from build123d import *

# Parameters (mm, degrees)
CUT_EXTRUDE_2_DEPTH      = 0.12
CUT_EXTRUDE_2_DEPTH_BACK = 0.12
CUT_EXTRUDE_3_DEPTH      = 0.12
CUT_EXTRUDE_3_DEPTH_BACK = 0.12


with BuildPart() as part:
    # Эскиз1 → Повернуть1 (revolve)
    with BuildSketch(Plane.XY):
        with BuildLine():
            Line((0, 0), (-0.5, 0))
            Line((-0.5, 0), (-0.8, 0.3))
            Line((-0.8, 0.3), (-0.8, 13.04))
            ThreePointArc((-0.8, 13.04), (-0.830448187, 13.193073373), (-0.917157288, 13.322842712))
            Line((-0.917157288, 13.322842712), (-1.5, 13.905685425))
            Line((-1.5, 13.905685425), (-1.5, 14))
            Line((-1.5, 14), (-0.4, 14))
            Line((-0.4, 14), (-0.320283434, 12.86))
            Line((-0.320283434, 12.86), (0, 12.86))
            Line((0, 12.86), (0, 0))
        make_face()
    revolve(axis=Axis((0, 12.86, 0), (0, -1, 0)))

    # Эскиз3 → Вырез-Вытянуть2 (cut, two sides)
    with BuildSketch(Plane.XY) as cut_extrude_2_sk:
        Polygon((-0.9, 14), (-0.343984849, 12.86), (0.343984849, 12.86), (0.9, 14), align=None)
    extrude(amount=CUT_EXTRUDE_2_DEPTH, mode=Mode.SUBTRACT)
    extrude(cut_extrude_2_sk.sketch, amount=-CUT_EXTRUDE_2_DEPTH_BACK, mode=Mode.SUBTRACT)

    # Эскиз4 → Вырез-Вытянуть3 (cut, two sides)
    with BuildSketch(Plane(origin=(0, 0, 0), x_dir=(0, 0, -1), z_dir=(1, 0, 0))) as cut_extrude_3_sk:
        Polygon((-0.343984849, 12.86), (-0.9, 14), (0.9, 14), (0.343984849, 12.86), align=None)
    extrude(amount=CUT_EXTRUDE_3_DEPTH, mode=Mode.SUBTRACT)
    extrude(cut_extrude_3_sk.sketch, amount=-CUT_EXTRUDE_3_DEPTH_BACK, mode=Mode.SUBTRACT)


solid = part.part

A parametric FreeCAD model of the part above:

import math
import FreeCAD as App
import Part
import Sketcher

V = App.Vector
Q = App.Units.Quantity

doc = App.newDocument("Part")
body = doc.addObject("PartDesign::Body", "Body")

sketch1 = body.newObject("Sketcher::SketchObject", "Sketch")
sketch1.AttachmentSupport = (doc.getObject("XY_Plane"), [""])
sketch1.MapMode = "FlatFace"
sketch1.addGeometry([
    Part.LineSegment(V(-0.5, 0, 0), V(0, 0, 0)),
    Part.LineSegment(V(0, 0, 0), V(0, 12.86, 0)),
    Part.LineSegment(V(0, 12.86, 0), V(-0.32, 12.86, 0)),
    Part.LineSegment(V(-0.32, 12.86, 0), V(-0.4, 14, 0)),
    Part.LineSegment(V(-0.4, 14, 0), V(-1.5, 14, 0)),
    Part.LineSegment(V(-1.5, 14, 0), V(-1.5, 13.91, 0)),
    Part.LineSegment(V(-1.5, 13.91, 0), V(-0.92, 13.32, 0)),
    Part.ArcOfCircle(Part.Circle(V(-1.2, 13.04, 0), V(0, 0, 1), 0.4), math.radians(0), math.radians(45)),
    Part.LineSegment(V(-0.8, 13.04, 0), V(-0.8, 0.3, 0)),
    Part.LineSegment(V(-0.8, 0.3, 0), V(-0.5, 0, 0)),
], False)
sketch1.addConstraint([
    Sketcher.Constraint("Coincident", 0, 2, 1, 1),
    Sketcher.Constraint("Coincident", 1, 2, 2, 1),
    Sketcher.Constraint("Coincident", 2, 2, 3, 1),
    Sketcher.Constraint("Coincident", 3, 2, 4, 1),
    Sketcher.Constraint("Coincident", 4, 2, 5, 1),
    Sketcher.Constraint("Coincident", 5, 2, 6, 1),
    Sketcher.Constraint("Tangent", 6, 2, 7, 2),
    Sketcher.Constraint("Tangent", 7, 1, 8, 1),
    Sketcher.Constraint("Coincident", 8, 2, 9, 1),
    Sketcher.Constraint("Coincident", 9, 2, 0, 1),
    Sketcher.Constraint("Horizontal", 0),
    Sketcher.Constraint("Vertical", 1),
    Sketcher.Constraint("Horizontal", 2),
    Sketcher.Constraint("Horizontal", 4),
    Sketcher.Constraint("Vertical", 5),
    Sketcher.Constraint("Vertical", 8),
    Sketcher.Constraint("Coincident", 0, 2, -1, 1),
    Sketcher.Constraint("Parallel", 6, 9),
    Sketcher.Constraint("Radius", 7, 0.4),
    Sketcher.Constraint("Angle", 3, Q("94 deg")),
    Sketcher.Constraint("Angle", 6, Q("-45 deg")),
    Sketcher.Constraint("DistanceX", 0, 1, 0, 2, 0.5),
    Sketcher.Constraint("DistanceX", 4, 2, 4, 1, 1.1),
    Sketcher.Constraint("DistanceY", -1, 1, 3, 2, 14.0),
    Sketcher.Constraint("DistanceY", 1, 1, 1, 2, 12.86),
    Sketcher.Constraint("DistanceY", 8, 2, 8, 1, 12.74),
    Sketcher.Constraint("DistanceX", 7, 3, -1, 1, 1.2),
    Sketcher.Constraint("DistanceX", 3, 2, -1, 1, 0.4),
])
revolution = body.newObject("PartDesign::Revolution", "Revolution")
revolution.Profile = sketch1
revolution.ReferenceAxis = (sketch1, ["V_Axis"])
revolution.Angle = 360

sketch2 = body.newObject("Sketcher::SketchObject", "Sketch001")
sketch2.AttachmentSupport = (doc.getObject("XY_Plane"), [""])
sketch2.MapMode = "FlatFace"
sketch2.addGeometry([
    Part.LineSegment(V(-0.9, 14, 0), V(-0.3, 12.9, 0)),
    Part.LineSegment(V(-0.3, 12.9, 0), V(0.3, 12.9, 0)),
    Part.LineSegment(V(0.3, 12.9, 0), V(0.9, 14, 0)),
    Part.LineSegment(V(0.9, 14, 0), V(-0.9, 14, 0)),
], False)
sketch2.addConstraint([
    Sketcher.Constraint("Coincident", 0, 2, 1, 1),
    Sketcher.Constraint("Coincident", 1, 2, 2, 1),
    Sketcher.Constraint("Coincident", 2, 2, 3, 1),
    Sketcher.Constraint("Coincident", 3, 2, 0, 1),
    Sketcher.Constraint("Horizontal", 1),
    Sketcher.Constraint("Horizontal", 3),
    Sketcher.Constraint("Equal", 0, 2),
    Sketcher.Constraint("Angle", 0, Q("-64 deg")),
    Sketcher.Constraint("DistanceX", 3, 2, 3, 1, 1.8),
    Sketcher.Constraint("DistanceY", -1, 1, 2, 2, 14.0),
    Sketcher.Constraint("DistanceX", -1, 1, 2, 2, 0.9),
    Sketcher.Constraint("DistanceY", -1, 1, 0, 2, 12.86),
])
pocket1 = body.newObject("PartDesign::Pocket", "Pocket")
pocket1.Profile = sketch2
pocket1.Type = "TwoLengths"
pocket1.Length = 0.12
pocket1.Length2 = 0.12
pocket1.Reversed = True

sketch3 = body.newObject("Sketcher::SketchObject", "Sketch002")
sketch3.AttachmentSupport = (doc.getObject("YZ_Plane"), [""])
sketch3.MapMode = "FlatFace"
sketch3.addGeometry([
    Part.LineSegment(V(14, 0.9, 0), V(12.9, 0.3, 0)),
    Part.LineSegment(V(12.9, 0.3, 0), V(12.9, -0.3, 0)),
    Part.LineSegment(V(12.9, -0.3, 0), V(14, -0.9, 0)),
    Part.LineSegment(V(14, -0.9, 0), V(14, 0.9, 0)),
], False)
sketch3.addConstraint([
    Sketcher.Constraint("Coincident", 0, 2, 1, 1),
    Sketcher.Constraint("Coincident", 1, 2, 2, 1),
    Sketcher.Constraint("Coincident", 2, 2, 3, 1),
    Sketcher.Constraint("Coincident", 3, 2, 0, 1),
    Sketcher.Constraint("Vertical", 1),
    Sketcher.Constraint("Vertical", 3),
    Sketcher.Constraint("Equal", 0, 2),
    Sketcher.Constraint("Angle", 0, Q("-154 deg")),
    Sketcher.Constraint("DistanceY", 3, 1, 3, 2, 1.8),
    Sketcher.Constraint("DistanceX", -1, 1, 2, 2, 14.0),
    Sketcher.Constraint("DistanceY", 2, 2, -1, 1, 0.9),
    Sketcher.Constraint("DistanceX", -1, 1, 0, 2, 12.86),
])
pocket2 = body.newObject("PartDesign::Pocket", "Pocket001")
pocket2.Profile = sketch3
pocket2.Type = "TwoLengths"
pocket2.Length = 0.12
pocket2.Length2 = 0.12
pocket2.Reversed = True

doc.recompute()
